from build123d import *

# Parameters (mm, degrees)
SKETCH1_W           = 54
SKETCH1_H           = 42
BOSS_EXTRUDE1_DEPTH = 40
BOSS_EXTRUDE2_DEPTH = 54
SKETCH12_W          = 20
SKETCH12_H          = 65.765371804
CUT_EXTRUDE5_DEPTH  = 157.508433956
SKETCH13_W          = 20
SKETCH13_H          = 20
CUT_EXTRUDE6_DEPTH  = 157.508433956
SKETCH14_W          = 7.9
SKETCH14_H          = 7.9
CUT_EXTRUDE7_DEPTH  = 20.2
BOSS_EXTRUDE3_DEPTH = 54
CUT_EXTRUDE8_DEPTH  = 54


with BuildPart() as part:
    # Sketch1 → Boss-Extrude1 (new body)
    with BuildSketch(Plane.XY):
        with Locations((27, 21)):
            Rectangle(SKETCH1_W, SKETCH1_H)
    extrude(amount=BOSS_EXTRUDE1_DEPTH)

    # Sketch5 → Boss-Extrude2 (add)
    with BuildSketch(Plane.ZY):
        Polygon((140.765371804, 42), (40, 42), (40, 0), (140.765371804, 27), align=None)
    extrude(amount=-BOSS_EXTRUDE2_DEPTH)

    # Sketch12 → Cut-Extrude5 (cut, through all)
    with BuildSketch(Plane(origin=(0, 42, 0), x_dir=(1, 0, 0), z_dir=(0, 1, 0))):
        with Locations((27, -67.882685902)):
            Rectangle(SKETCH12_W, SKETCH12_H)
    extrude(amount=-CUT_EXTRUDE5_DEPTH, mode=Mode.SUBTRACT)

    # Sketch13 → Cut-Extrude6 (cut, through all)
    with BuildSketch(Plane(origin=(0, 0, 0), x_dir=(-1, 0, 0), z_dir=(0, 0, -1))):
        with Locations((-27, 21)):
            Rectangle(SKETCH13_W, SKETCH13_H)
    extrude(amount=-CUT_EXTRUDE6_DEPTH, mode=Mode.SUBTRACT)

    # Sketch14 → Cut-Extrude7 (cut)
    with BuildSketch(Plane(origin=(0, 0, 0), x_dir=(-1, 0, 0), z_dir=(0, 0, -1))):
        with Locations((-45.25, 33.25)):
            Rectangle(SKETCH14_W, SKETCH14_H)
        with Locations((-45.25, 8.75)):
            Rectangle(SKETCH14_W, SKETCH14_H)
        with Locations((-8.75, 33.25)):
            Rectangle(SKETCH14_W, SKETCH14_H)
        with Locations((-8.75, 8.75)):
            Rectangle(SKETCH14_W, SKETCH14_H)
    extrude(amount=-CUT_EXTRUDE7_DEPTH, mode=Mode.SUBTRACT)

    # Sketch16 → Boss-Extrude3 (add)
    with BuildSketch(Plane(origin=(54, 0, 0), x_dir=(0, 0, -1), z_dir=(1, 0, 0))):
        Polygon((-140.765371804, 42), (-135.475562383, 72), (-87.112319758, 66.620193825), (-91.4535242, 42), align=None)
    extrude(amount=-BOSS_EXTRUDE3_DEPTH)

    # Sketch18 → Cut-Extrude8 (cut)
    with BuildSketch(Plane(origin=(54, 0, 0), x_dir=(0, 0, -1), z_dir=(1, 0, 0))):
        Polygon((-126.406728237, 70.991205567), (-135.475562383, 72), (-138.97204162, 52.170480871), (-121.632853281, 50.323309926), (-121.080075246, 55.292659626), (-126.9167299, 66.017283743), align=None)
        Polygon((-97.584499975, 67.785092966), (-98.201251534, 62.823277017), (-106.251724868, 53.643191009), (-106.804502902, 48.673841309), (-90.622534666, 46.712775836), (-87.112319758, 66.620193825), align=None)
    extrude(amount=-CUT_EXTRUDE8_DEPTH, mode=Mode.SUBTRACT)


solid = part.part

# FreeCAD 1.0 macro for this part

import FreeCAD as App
import Part
import Sketcher
Q = App.Units.Quantity

doc = App.newDocument("Part")
body = doc.addObject("PartDesign::Body", "Body")

sketch1 = body.newObject("Sketcher::SketchObject", "Sketch")
sketch1.AttachmentSupport = (doc.getObject("XY_Plane"), [""])
sketch1.MapMode = "FlatFace"
sketch1.addGeometry([
    Part.LineSegment(App.Vector(0, 42, 0), App.Vector(0, 0, 0)),
    Part.LineSegment(App.Vector(0, 0, 0), App.Vector(54, 0, 0)),
    Part.LineSegment(App.Vector(54, 0, 0), App.Vector(54, 42, 0)),
    Part.LineSegment(App.Vector(54, 42, 0), App.Vector(0, 42, 0)),
], False)
sketch1.addConstraint([
    Sketcher.Constraint("Coincident", 0, 2, 1, 1),
    Sketcher.Constraint("Coincident", 1, 2, 2, 1),
    Sketcher.Constraint("Coincident", 2, 2, 3, 1),
    Sketcher.Constraint("Coincident", 3, 2, 0, 1),
    Sketcher.Constraint("Vertical", 0),
    Sketcher.Constraint("Horizontal", 1),
    Sketcher.Constraint("Vertical", 2),
    Sketcher.Constraint("Horizontal", 3),
    Sketcher.Constraint("Coincident", 0, 2, -1, 1),
    Sketcher.Constraint("DistanceX", 1, 1, 1, 2, 54.0),
    Sketcher.Constraint("DistanceY", 0, 2, 0, 1, 42.0),
])
pad1 = body.newObject("PartDesign::Pad", "Pad")
pad1.Profile = sketch1
pad1.Length = 40

sketch2 = body.newObject("Sketcher::SketchObject", "Sketch001")
sketch2.AttachmentSupport = (doc.getObject("YZ_Plane"), [""])
sketch2.MapMode = "FlatFace"
sketch2.addGeometry([
    Part.LineSegment(App.Vector(42, 140.765372, 0), App.Vector(42, 40, 0)),
    Part.LineSegment(App.Vector(42, 40, 0), App.Vector(0, 40, 0)),
    Part.LineSegment(App.Vector(0, 40, 0), App.Vector(27, 140.765372, 0)),
    Part.LineSegment(App.Vector(27, 140.765372, 0), App.Vector(42, 140.765372, 0)),
], False)
sketch2.addConstraint([
    Sketcher.Constraint("Coincident", 0, 2, 1, 1),
    Sketcher.Constraint("Coincident", 1, 2, 2, 1),
    Sketcher.Constraint("Coincident", 2, 2, 3, 1),
    Sketcher.Constraint("Coincident", 3, 2, 0, 1),
    Sketcher.Constraint("Vertical", 0),
    Sketcher.Constraint("Horizontal", 1),
    Sketcher.Constraint("Horizontal", 3),
    Sketcher.Constraint("PointOnObject", 1, 2, -2),
    Sketcher.Constraint("DistanceX", 1, 2, 1, 1, 42.0),
    Sketcher.Constraint("DistanceX", 3, 1, 3, 2, 15.0),
    Sketcher.Constraint("Angle", 2, Q("75 deg")),
    Sketcher.Constraint("DistanceY", -1, 1, 0, 2, 40.0),
])
pad2 = body.newObject("PartDesign::Pad", "Pad001")
pad2.Profile = sketch2
pad2.Length = 54

sketch3 = body.newObject("Sketcher::SketchObject", "Sketch002")
sketch3.AttachmentSupport = (doc.getObject("XZ_Plane"), [""])
sketch3.MapMode = "FlatFace"
sketch3.AttachmentOffset = App.Placement(App.Vector(0, 0, -42), App.Rotation())
sketch3.addGeometry([
    Part.LineSegment(App.Vector(17, 35, 0), App.Vector(17, 100.765372, 0)),
    Part.LineSegment(App.Vector(17, 100.765372, 0), App.Vector(37, 100.765372, 0)),
    Part.LineSegment(App.Vector(37, 100.765372, 0), App.Vector(37, 35, 0)),
    Part.LineSegment(App.Vector(37, 35, 0), App.Vector(17, 35, 0)),
], False)
sketch3.addConstraint([
    Sketcher.Constraint("Coincident", 0, 2, 1, 1),
    Sketcher.Constraint("Coincident", 1, 2, 2, 1),
    Sketcher.Constraint("Coincident", 2, 2, 3, 1),
    Sketcher.Constraint("Coincident", 3, 2, 0, 1),
    Sketcher.Constraint("Vertical", 0),
    Sketcher.Constraint("Horizontal", 1),
    Sketcher.Constraint("Vertical", 2),
    Sketcher.Constraint("Horizontal", 3),
    Sketcher.Constraint("DistanceX", 1, 1, 1, 2, 20.0),
    Sketcher.Constraint("DistanceX", -1, 1, 0, 2, 17.0),
    Sketcher.Constraint("DistanceY", -1, 1, 2, 2, 35.0),
    Sketcher.Constraint("DistanceY", 0, 1, 0, 2, 65.765372),
])
pocket1 = body.newObject("PartDesign::Pocket", "Pocket")
pocket1.Profile = sketch3
pocket1.Type = "ThroughAll"
pocket1.Reversed = True

sketch4 = body.newObject("Sketcher::SketchObject", "Sketch003")
sketch4.AttachmentSupport = (doc.getObject("XY_Plane"), [""])
sketch4.MapMode = "FlatFace"
sketch4.addGeometry([
    Part.LineSegment(App.Vector(37, 31, 0), App.Vector(37, 11, 0)),
    Part.LineSegment(App.Vector(37, 11, 0), App.Vector(17, 11, 0)),
    Part.LineSegment(App.Vector(17, 11, 0), App.Vector(17, 31, 0)),
    Part.LineSegment(App.Vector(17, 31, 0), App.Vector(37, 31, 0)),
], False)
sketch4.addConstraint([
    Sketcher.Constraint("Coincident", 0, 2, 1, 1),
    Sketcher.Constraint("Coincident", 1, 2, 2, 1),
    Sketcher.Constraint("Coincident", 2, 2, 3, 1),
    Sketcher.Constraint("Coincident", 3, 2, 0, 1),
    Sketcher.Constraint("Vertical", 0),
    Sketcher.Constraint("Horizontal", 1),
    Sketcher.Constraint("Vertical", 2),
    Sketcher.Constraint("Horizontal", 3),
    Sketcher.Constraint("Equal", 3, 0),
    Sketcher.Constraint("DistanceX", 1, 2, 1, 1, 20.0),
    Sketcher.Constraint("DistanceX", -1, 1, 0, 2, 37.0),
    Sketcher.Constraint("DistanceY", -1, 1, 0, 2, 11.0),
])
pocket2 = body.newObject("PartDesign::Pocket", "Pocket001")
pocket2.Profile = sketch4
pocket2.Type = "ThroughAll"
pocket2.Reversed = True

sketch5 = body.newObject("Sketcher::SketchObject", "Sketch004")
sketch5.AttachmentSupport = (doc.getObject("XY_Plane"), [""])
sketch5.MapMode = "FlatFace"
sketch5.addGeometry([
    Part.LineSegment(App.Vector(49.2, 37.2, 0), App.Vector(49.2, 29.3, 0)),
    Part.LineSegment(App.Vector(49.2, 29.3, 0), App.Vector(41.3, 29.3, 0)),
    Part.LineSegment(App.Vector(41.3, 29.3, 0), App.Vector(41.3, 37.2, 0)),
    Part.LineSegment(App.Vector(41.3, 37.2, 0), App.Vector(49.2, 37.2, 0)),
    Part.LineSegment(App.Vector(49.2, 12.7, 0), App.Vector(49.2, 4.8, 0)),
    Part.LineSegment(App.Vector(49.2, 4.8, 0), App.Vector(41.3, 4.8, 0)),
    Part.LineSegment(App.Vector(41.3, 4.8, 0), App.Vector(41.3, 12.7, 0)),
    Part.LineSegment(App.Vector(41.3, 12.7, 0), App.Vector(49.2, 12.7, 0)),
    Part.LineSegment(App.Vector(12.7, 37.2, 0), App.Vector(12.7, 29.3, 0)),
    Part.LineSegment(App.Vector(12.7, 29.3, 0), App.Vector(4.8, 29.3, 0)),
    Part.LineSegment(App.Vector(4.8, 29.3, 0), App.Vector(4.8, 37.2, 0)),
    Part.LineSegment(App.Vector(4.8, 37.2, 0), App.Vector(12.7, 37.2, 0)),
    Part.LineSegment(App.Vector(12.7, 12.7, 0), App.Vector(12.7, 4.8, 0)),
    Part.LineSegment(App.Vector(12.7, 4.8, 0), App.Vector(4.8, 4.8, 0)),
    Part.LineSegment(App.Vector(4.8, 4.8, 0), App.Vector(4.8, 12.7, 0)),
    Part.LineSegment(App.Vector(4.8, 12.7, 0), App.Vector(12.7, 12.7, 0)),
], False)
sketch5.addConstraint([
    Sketcher.Constraint("Coincident", 0, 2, 1, 1),
    Sketcher.Constraint("Coincident", 1, 2, 2, 1),
    Sketcher.Constraint("Coincident", 2, 2, 3, 1),
    Sketcher.Constraint("Coincident", 3, 2, 0, 1),
    Sketcher.Constraint("Coincident", 4, 2, 5, 1),
    Sketcher.Constraint("Coincident", 5, 2, 6, 1),
    Sketcher.Constraint("Coincident", 6, 2, 7, 1),
    Sketcher.Constraint("Coincident", 7, 2, 4, 1),
    Sketcher.Constraint("Coincident", 8, 2, 9, 1),
    Sketcher.Constraint("Coincident", 9, 2, 10, 1),
    Sketcher.Constraint("Coincident", 10, 2, 11, 1),
    Sketcher.Constraint("Coincident", 11, 2, 8, 1),
    Sketcher.Constraint("Coincident", 12, 2, 13, 1),
    Sketcher.Constraint("Coincident", 13, 2, 14, 1),
    Sketcher.Constraint("Coincident", 14, 2, 15, 1),
    Sketcher.Constraint("Coincident", 15, 2, 12, 1),
    Sketcher.Constraint("Vertical", 0),
    Sketcher.Constraint("Horizontal", 1),
    Sketcher.Constraint("Vertical", 2),
    Sketcher.Constraint("Horizontal", 3),
    Sketcher.Constraint("Vertical", 4),
    Sketcher.Constraint("Horizontal", 5),
    Sketcher.Constraint("Vertical", 6),
    Sketcher.Constraint("Horizontal", 7),
    Sketcher.Constraint("Vertical", 8),
    Sketcher.Constraint("Horizontal", 9),
    Sketcher.Constraint("Vertical", 10),
    Sketcher.Constraint("Horizontal", 11),
    Sketcher.Constraint("Vertical", 12),
    Sketcher.Constraint("Horizontal", 13),
    Sketcher.Constraint("Vertical", 14),
    Sketcher.Constraint("Horizontal", 15),
    Sketcher.Constraint("Horizontal", 1, 2, 8, 2),
    Sketcher.Constraint("Horizontal", 3, 2, 10, 2),
    Sketcher.Constraint("Horizontal", 5, 2, 12, 2),
    Sketcher.Constraint("Horizontal", 7, 2, 14, 2),
    Sketcher.Constraint("Vertical", 3, 2, 4, 2),
    Sketcher.Constraint("Vertical", 2, 2, 5, 2),
    Sketcher.Constraint("Vertical", 11, 2, 12, 2),
    Sketcher.Constraint("Vertical", 10, 2, 13, 2),
    Sketcher.Constraint("Equal", 7, 9),
    Sketcher.Constraint("Equal", 15, 0),
    Sketcher.Constraint("Equal", 2, 4),
    Sketcher.Constraint("DistanceX", 1, 2, 1, 1, 7.9),
    Sketcher.Constraint("DistanceX", -1, 1, 0, 2, 49.2),
    Sketcher.Constraint("DistanceY", -1, 1, 0, 2, 29.3),
    Sketcher.Constraint("DistanceY", -1, 1, 4, 2, 4.8),
    Sketcher.Constraint("DistanceX", -1, 1, 8, 2, 12.7),
])
pocket3 = body.newObject("PartDesign::Pocket", "Pocket002")
pocket3.Profile = sketch5
pocket3.Length = 20.2
pocket3.Reversed = True

sketch6 = body.newObject("Sketcher::SketchObject", "Sketch005")
sketch6.AttachmentSupport = (doc.getObject("YZ_Plane"), [""])
sketch6.MapMode = "FlatFace"
sketch6.AttachmentOffset = App.Placement(App.Vector(0, 0, 54), App.Rotation())
sketch6.addGeometry([
    Part.LineSegment(App.Vector(72, 135.475562, 0), App.Vector(42, 140.765372, 0)),
    Part.LineSegment(App.Vector(42, 140.765372, 0), App.Vector(42, 91.453524, 0)),
    Part.LineSegment(App.Vector(42, 91.453524, 0), App.Vector(66.620194, 87.11232, 0)),
    Part.LineSegment(App.Vector(66.620194, 87.11232, 0), App.Vector(72, 135.475562, 0)),
], False)
sketch6.addConstraint([
    Sketcher.Constraint("Coincident", 0, 2, 1, 1),
    Sketcher.Constraint("Coincident", 1, 2, 2, 1),
    Sketcher.Constraint("Coincident", 2, 2, 3, 1),
    Sketcher.Constraint("Coincident", 3, 2, 0, 1),
    Sketcher.Constraint("Vertical", 1),
    Sketcher.Constraint("Parallel", 0, 2),
    Sketcher.Constraint("Angle", 0, Q("170 deg")),
    Sketcher.Constraint("Distance", 2, 25.0),
    Sketcher.Constraint("DistanceX", -1, 1, 0, 2, 42.0),
    Sketcher.Constraint("DistanceX", -1, 1, 3, 2, 72.0),
    Sketcher.Constraint("Distance", 3, 48.661541),
    Sketcher.Constraint("DistanceY", -1, 1, 0, 2, 140.765372),
])
pad3 = body.newObject("PartDesign::Pad", "Pad002")
pad3.Profile = sketch6
pad3.Length = 54
pad3.Reversed = True

sketch7 = body.newObject("Sketcher::SketchObject", "Sketch006")
sketch7.AttachmentSupport = (doc.getObject("YZ_Plane"), [""])
sketch7.MapMode = "FlatFace"
sketch7.AttachmentOffset = App.Placement(App.Vector(0, 0, 54), App.Rotation())
sketch7.addGeometry([
    Part.LineSegment(App.Vector(70.991206, 126.406728, 0), App.Vector(72, 135.475562, 0)),
    Part.LineSegment(App.Vector(72, 135.475562, 0), App.Vector(52.170481, 138.972042, 0)),
    Part.LineSegment(App.Vector(52.170481, 138.972042, 0), App.Vector(50.32331, 121.632853, 0)),
    Part.LineSegment(App.Vector(50.32331, 121.632853, 0), App.Vector(55.29266, 121.080075, 0)),
    Part.LineSegment(App.Vector(55.29266, 121.080075, 0), App.Vector(66.017284, 126.91673, 0)),
    Part.LineSegment(App.Vector(66.017284, 126.91673, 0), App.Vector(70.991206, 126.406728, 0)),
    Part.LineSegment(App.Vector(67.785093, 97.5845, 0), App.Vector(62.823277, 98.201252, 0)),
    Part.LineSegment(App.Vector(62.823277, 98.201252, 0), App.Vector(53.643191, 106.251725, 0)),
    Part.LineSegment(App.Vector(53.643191, 106.251725, 0), App.Vector(48.673841, 106.804503, 0)),
    Part.LineSegment(App.Vector(48.673841, 106.804503, 0), App.Vector(46.712776, 90.622535, 0)),
    Part.LineSegment(App.Vector(46.712776, 90.622535, 0), App.Vector(66.620194, 87.11232, 0)),
    Part.LineSegment(App.Vector(66.620194, 87.11232, 0), App.Vector(67.785093, 97.5845, 0)),
], False)
sketch7.addConstraint([
    Sketcher.Constraint("Coincident", 0, 2, 1, 1),
    Sketcher.Constraint("Coincident", 1, 2, 2, 1),
    Sketcher.Constraint("Coincident", 2, 2, 3, 1),
    Sketcher.Constraint("Coincident", 3, 2, 4, 1),
    Sketcher.Constraint("Coincident", 4, 2, 5, 1),
    Sketcher.Constraint("Coincident", 5, 2, 0, 1),
    Sketcher.Constraint("Coincident", 6, 2, 7, 1),
    Sketcher.Constraint("Coincident", 7, 2, 8, 1),
    Sketcher.Constraint("Coincident", 8, 2, 9, 1),
    Sketcher.Constraint("Coincident", 9, 2, 10, 1),
    Sketcher.Constraint("Coincident", 10, 2, 11, 1),
    Sketcher.Constraint("Coincident", 11, 2, 6, 1),
    Sketcher.Constraint("Perpendicular", 0, 3),
    Sketcher.Constraint("Parallel", 3, 8),
    Sketcher.Constraint("Parallel", 1, 10),
    Sketcher.Constraint("Perpendicular", 8, 11),
    Sketcher.Constraint("Equal", 3, 5),
    Sketcher.Constraint("Equal", 5, 6),
    Sketcher.Constraint("Equal", 4, 7),
    Sketcher.Constraint("Equal", 6, 8),
    Sketcher.Constraint("Angle", 1, Q("170 deg")),
    Sketcher.Constraint("Distance", 3, 5.0),
    Sketcher.Constraint("DistanceX", -1, 1, 0, 2, 72.0),
    Sketcher.Constraint("Distance", 4, 12.21),
    Sketcher.Constraint("DistanceY", 5, 2, 4, 2, 0.510002),
    Sketcher.Constraint("Distance", 2, 17.437302),
    Sketcher.Constraint("DistanceY", -1, 1, 11, 2, 97.5845),
    Sketcher.Constraint("DistanceY", 6, 2, 2, 2, 23.431602),
    Sketcher.Constraint("DistanceX", 9, 2, 6, 2, 16.110501),
    Sketcher.Constraint("DistanceX", 10, 2, 11, 2, 1.164899),
    Sketcher.Constraint("DistanceX", 7, 2, 11, 2, 14.141902),
    Sketcher.Constraint("Distance", 0, 9.12477),
    Sketcher.Constraint("Distance", 1, 20.135421),
    Sketcher.Constraint("Distance", 11, 10.536771),
    Sketcher.Constraint("DistanceY", -1, 1, 1, 2, 138.972042),
    Sketcher.Constraint("DistanceX", -1, 1, 7, 2, 53.643191),
])
pocket4 = body.newObject("PartDesign::Pocket", "Pocket003")
pocket4.Profile = sketch7
pocket4.Length = 54

doc.recompute()
